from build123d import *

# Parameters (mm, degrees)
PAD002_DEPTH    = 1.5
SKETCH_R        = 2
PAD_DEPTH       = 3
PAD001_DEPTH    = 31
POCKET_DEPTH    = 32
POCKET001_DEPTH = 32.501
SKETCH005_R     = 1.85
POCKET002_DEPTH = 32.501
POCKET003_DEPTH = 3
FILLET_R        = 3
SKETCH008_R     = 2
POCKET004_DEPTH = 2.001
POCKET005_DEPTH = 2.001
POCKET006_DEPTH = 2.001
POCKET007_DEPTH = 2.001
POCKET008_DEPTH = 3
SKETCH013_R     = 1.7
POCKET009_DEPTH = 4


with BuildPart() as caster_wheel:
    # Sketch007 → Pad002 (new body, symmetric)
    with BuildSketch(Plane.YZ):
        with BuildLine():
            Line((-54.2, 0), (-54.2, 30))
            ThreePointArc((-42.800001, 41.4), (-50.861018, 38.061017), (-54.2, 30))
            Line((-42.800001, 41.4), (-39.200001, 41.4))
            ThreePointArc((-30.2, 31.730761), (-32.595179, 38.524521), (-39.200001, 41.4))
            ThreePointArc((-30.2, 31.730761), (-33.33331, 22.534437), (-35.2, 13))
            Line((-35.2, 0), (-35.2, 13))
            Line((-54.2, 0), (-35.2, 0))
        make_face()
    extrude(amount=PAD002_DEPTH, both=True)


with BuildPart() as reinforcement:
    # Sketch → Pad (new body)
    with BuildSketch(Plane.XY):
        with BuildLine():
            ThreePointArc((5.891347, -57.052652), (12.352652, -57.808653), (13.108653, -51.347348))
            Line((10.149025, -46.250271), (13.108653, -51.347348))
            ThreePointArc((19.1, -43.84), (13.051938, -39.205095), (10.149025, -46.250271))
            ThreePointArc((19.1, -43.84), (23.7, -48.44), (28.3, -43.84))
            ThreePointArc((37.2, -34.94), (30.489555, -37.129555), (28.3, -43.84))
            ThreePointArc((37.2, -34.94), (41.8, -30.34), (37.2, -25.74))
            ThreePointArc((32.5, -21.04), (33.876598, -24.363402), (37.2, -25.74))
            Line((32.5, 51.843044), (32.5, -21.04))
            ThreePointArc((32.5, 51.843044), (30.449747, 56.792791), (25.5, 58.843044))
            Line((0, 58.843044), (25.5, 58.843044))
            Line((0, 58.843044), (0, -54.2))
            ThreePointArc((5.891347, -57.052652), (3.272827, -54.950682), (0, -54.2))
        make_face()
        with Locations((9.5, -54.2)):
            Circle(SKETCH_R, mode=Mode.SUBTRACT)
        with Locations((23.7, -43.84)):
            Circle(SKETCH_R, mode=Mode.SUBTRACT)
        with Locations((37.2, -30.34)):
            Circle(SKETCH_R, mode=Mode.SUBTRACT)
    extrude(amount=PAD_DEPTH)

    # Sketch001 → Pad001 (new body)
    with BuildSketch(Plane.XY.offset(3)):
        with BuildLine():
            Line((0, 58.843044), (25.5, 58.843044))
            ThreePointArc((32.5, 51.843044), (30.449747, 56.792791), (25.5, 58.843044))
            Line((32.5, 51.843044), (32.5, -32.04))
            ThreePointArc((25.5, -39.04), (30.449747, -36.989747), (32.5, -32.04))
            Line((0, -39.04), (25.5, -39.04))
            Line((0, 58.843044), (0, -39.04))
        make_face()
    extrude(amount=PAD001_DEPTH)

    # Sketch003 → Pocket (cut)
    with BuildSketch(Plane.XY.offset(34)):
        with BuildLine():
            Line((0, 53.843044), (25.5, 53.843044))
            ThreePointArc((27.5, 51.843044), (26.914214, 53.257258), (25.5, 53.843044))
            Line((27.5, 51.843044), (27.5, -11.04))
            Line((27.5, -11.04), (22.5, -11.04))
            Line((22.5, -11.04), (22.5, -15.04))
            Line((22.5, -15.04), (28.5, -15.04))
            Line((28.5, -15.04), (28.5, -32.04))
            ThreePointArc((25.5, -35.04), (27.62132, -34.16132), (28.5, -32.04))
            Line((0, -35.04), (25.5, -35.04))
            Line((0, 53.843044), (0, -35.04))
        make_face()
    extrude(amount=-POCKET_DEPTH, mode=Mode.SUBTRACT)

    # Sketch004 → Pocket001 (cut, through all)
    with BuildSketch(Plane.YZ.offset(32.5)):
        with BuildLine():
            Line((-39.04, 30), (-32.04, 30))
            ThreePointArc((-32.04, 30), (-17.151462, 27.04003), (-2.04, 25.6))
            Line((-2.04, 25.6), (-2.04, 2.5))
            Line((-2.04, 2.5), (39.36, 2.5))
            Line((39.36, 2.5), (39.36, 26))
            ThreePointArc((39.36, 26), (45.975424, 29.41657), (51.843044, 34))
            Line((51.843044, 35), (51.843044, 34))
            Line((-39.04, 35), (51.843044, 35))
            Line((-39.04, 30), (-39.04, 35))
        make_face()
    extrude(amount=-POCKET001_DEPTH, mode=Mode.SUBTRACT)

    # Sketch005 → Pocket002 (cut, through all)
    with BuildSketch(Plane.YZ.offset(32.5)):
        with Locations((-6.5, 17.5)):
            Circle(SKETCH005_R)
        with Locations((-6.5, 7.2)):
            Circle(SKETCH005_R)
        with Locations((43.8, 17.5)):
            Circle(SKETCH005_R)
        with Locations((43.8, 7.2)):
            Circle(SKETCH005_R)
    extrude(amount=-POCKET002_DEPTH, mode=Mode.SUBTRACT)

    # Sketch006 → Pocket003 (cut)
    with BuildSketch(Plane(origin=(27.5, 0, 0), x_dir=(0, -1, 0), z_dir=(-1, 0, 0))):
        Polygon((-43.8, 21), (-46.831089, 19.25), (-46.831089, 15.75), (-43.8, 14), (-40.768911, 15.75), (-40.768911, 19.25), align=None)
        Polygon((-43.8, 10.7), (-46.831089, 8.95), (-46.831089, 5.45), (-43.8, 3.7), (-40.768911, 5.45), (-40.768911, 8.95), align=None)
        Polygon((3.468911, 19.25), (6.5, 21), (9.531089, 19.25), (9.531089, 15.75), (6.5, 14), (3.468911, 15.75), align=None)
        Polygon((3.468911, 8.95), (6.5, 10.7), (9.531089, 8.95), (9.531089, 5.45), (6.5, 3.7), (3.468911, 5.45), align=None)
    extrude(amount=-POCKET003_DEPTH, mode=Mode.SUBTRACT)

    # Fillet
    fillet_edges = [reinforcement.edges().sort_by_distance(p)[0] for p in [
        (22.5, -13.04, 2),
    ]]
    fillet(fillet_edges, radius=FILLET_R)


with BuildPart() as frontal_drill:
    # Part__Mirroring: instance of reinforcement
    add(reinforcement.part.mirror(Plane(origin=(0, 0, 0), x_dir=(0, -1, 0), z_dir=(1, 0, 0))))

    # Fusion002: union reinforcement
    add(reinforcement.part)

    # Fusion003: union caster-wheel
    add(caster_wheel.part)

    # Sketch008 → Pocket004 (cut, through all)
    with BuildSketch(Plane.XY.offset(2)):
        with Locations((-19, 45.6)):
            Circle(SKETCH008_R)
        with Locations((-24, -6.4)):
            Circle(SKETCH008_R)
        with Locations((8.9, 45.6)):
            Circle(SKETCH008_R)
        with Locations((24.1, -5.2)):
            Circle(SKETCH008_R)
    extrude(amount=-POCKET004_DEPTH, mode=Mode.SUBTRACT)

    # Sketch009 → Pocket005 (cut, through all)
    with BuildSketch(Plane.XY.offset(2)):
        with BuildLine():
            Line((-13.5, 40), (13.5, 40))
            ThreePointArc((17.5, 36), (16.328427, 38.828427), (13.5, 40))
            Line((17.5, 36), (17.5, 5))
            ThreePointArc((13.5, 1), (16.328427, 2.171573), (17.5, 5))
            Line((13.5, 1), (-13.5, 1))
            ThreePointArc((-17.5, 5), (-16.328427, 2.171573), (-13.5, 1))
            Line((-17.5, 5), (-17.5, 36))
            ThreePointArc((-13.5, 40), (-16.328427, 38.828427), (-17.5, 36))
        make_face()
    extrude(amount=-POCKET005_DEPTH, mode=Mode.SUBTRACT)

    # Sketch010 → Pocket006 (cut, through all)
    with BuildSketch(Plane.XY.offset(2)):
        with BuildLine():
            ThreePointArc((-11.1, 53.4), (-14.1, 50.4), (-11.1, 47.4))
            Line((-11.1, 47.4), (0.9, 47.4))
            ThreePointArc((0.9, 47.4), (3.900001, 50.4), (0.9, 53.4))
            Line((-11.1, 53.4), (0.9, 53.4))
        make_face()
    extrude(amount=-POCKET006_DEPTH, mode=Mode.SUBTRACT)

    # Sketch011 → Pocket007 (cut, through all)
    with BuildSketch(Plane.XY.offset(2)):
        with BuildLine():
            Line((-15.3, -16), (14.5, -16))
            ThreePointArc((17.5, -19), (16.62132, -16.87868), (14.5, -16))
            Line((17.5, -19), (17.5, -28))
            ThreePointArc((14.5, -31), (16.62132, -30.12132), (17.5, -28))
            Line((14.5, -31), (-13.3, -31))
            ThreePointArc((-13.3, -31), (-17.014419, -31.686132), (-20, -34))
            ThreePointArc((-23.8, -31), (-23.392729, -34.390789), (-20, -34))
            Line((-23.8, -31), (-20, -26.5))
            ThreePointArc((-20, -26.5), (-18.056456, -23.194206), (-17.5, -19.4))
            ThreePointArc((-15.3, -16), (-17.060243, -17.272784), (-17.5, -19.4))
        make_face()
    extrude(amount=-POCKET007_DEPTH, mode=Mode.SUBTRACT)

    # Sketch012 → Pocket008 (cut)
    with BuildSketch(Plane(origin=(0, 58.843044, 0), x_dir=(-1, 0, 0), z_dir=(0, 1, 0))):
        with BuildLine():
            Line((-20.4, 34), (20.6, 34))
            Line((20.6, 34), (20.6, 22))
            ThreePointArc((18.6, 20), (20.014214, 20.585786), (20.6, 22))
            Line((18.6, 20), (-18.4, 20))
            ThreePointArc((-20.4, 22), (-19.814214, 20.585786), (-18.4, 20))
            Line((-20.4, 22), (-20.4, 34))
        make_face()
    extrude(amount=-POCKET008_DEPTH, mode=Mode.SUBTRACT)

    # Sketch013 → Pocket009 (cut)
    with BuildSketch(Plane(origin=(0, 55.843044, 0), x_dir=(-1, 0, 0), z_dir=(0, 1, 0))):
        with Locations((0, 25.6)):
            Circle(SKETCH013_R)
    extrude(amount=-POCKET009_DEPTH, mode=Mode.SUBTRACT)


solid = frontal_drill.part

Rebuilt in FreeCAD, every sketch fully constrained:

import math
import FreeCAD as App
import Part
import Sketcher

V = App.Vector
Q = App.Units.Quantity


def edges_at(feature, points):
    """Names of the edges that pass closest to the given points."""
    edges = feature.Shape.Edges
    near = lambda p: min(range(len(edges)), key=lambda i: edges[i].distToShape(Part.Vertex(*p))[0])
    return sorted({f"Edge{near(p) + 1}" for p in points})


def add_polygon(sketch, points):
    """Adds a closed chain of lines whose ends are joined by coincident constraints."""
    first, n = sketch.GeometryCount, len(points)
    for a, b in zip(points, points[1:] + points[:1]):
        sketch.addGeometry(Part.LineSegment(App.Vector(*a, 0), App.Vector(*b, 0)), False)
    for i in range(n):
        sketch.addConstraint(Sketcher.Constraint("Coincident", first + i, 2, first + (i + 1) % n, 1))

doc = App.newDocument("Part")
body = doc.addObject("PartDesign::Body", "Body")

# Sketch on YZ plane
sketch1 = body.newObject("Sketcher::SketchObject", "Sketch")
sketch1.AttachmentSupport = (doc.getObject("YZ_Plane"), [""])
sketch1.MapMode = "FlatFace"
sketch1.addGeometry(Part.LineSegment(V(-54.2, 30, 0), V(-54.2, 0, 0)), False)
sketch1.addGeometry(Part.LineSegment(V(-54.2, 0, 0), V(-35.2, 0, 0)), False)
sketch1.addGeometry(Part.LineSegment(V(-35.2, 0, 0), V(-35.2, 13, 0)), False)
sketch1.addGeometry(Part.ArcOfCircle(Part.Circle(V(36.2, 4, 0), V(0, 0, 1), 72), math.radians(157.32), math.radians(172.79)), False)
sketch1.addGeometry(Part.ArcOfCircle(Part.Circle(V(-39.2, 32.4, 0), V(0, 0, 1), 9), math.radians(-4), math.radians(90)), False)
sketch1.addGeometry(Part.LineSegment(V(-39.2, 41.4, 0), V(-42.8, 41.4, 0)), False)
sketch1.addGeometry(Part.ArcOfCircle(Part.Circle(V(-42.8, 30, 0), V(0, 0, 1), 11.4), math.radians(90), math.radians(180)), False)
sketch1.addConstraint(Sketcher.Constraint("Coincident", 0, 2, 1, 1))
sketch1.addConstraint(Sketcher.Constraint("Coincident", 1, 2, 2, 1))
sketch1.addConstraint(Sketcher.Constraint("Coincident", 2, 2, 3, 2))
sketch1.addConstraint(Sketcher.Constraint("Coincident", 3, 1, 4, 1))
sketch1.addConstraint(Sketcher.Constraint("Coincident", 4, 2, 5, 1))
sketch1.addConstraint(Sketcher.Constraint("Tangent", 5, 2, 6, 1))
sketch1.addConstraint(Sketcher.Constraint("Tangent", 6, 2, 0, 1))
sketch1.addConstraint(Sketcher.Constraint("Vertical", 0))
sketch1.addConstraint(Sketcher.Constraint("Horizontal", 1))
sketch1.addConstraint(Sketcher.Constraint("Vertical", 2))
sketch1.addConstraint(Sketcher.Constraint("Horizontal", 5))
sketch1.addConstraint(Sketcher.Constraint("PointOnObject", 0, 2, -1))
sketch1.addConstraint(Sketcher.Constraint("Radius", 6, Q("11.399999 mm")))
sketch1.addConstraint(Sketcher.Constraint("DistanceX", 1, 1, 1, 2, Q("19 mm")))
sketch1.addConstraint(Sketcher.Constraint("DistanceY", 0, 2, 0, 1, Q("30 mm")))
sketch1.addConstraint(Sketcher.Constraint("DistanceY", 2, 1, 2, 2, Q("13 mm")))
sketch1.addConstraint(Sketcher.Constraint("DistanceX", 5, 2, 5, 1, Q("3.6 mm")))
sketch1.addConstraint(Sketcher.Constraint("DistanceX", 2, 2, 3, 1, Q("5 mm")))
sketch1.addConstraint(Sketcher.Constraint("DistanceX", 6, 3, -1, 1, Q("42.800001 mm")))
sketch1.addConstraint(Sketcher.Constraint("Radius", 3, Q("72.000043 mm")))
sketch1.addConstraint(Sketcher.Constraint("Radius", 4, Q("9.023133 mm")))
sketch1.addConstraint(Sketcher.Constraint("DistanceX", -1, 1, 3, 3, Q("36.230901 mm")))
pad1 = body.newObject("PartDesign::Pad", "Pad")
pad1.Profile = sketch1
pad1.Length = 3
pad1.Midplane = True
body2 = doc.addObject("PartDesign::Body", "Body001")

# Sketch on XY plane
sketch2 = body2.newObject("Sketcher::SketchObject", "Sketch001")
sketch2.AttachmentSupport = (doc.getObject("XY_Plane001"), [""])
sketch2.MapMode = "FlatFace"
sketch2.addGeometry(Part.ArcOfCircle(Part.Circle(V(9.5, -54.2, 0), V(0, 0, 1), 4.6), math.radians(-142), math.radians(38)), False)
sketch2.addGeometry(Part.LineSegment(V(13.1, -51.3, 0), V(10.1, -46.3, 0)), False)
sketch2.addGeometry(Part.ArcOfCircle(Part.Circle(V(14.3, -43.8, 0), V(0, 0, 1), 4.8), math.radians(0), math.radians(210)), False)
sketch2.addGeometry(Part.ArcOfCircle(Part.Circle(V(23.7, -43.8, 0), V(0, 0, 1), 4.6), math.radians(180), math.radians(360)), False)
sketch2.addGeometry(Part.ArcOfCircle(Part.Circle(V(36, -42.6, 0), V(0, 0, 1), 7.8), math.radians(81), math.radians(189)), False)
sketch2.addGeometry(Part.ArcOfCircle(Part.Circle(V(37.2, -30.3, 0), V(0, 0, 1), 4.6), math.radians(-90), math.radians(90)), False)
sketch2.addGeometry(Part.ArcOfCircle(Part.Circle(V(37.2, -21, 0), V(0, 0, 1), 4.7), math.radians(180), math.radians(270)), False)
sketch2.addGeometry(Part.LineSegment(V(32.5, -21, 0), V(32.5, 51.8, 0)), False)
sketch2.addGeometry(Part.ArcOfCircle(Part.Circle(V(25.5, 51.8, 0), V(0, 0, 1), 7), math.radians(0), math.radians(90)), False)
sketch2.addGeometry(Part.LineSegment(V(25.5, 58.8, 0), V(0, 58.8, 0)), False)
sketch2.addGeometry(Part.LineSegment(V(0, 58.8, 0), V(0, -54.2, 0)), False)
sketch2.addGeometry(Part.ArcOfCircle(Part.Circle(V(0, -61.7, 0), V(0, 0, 1), 7.5), math.radians(38), math.radians(90)), False)
sketch2.addGeometry(Part.Circle(V(9.5, -54.2, 0), V(0, 0, 1), 2), False)
sketch2.addGeometry(Part.Circle(V(23.7, -43.8, 0), V(0, 0, 1), 2), False)
sketch2.addGeometry(Part.Circle(V(37.2, -30.3, 0), V(0, 0, 1), 2), False)
sketch2.addConstraint(Sketcher.Constraint("Coincident", 0, 2, 1, 1))
sketch2.addConstraint(Sketcher.Constraint("Tangent", 1, 2, 2, 2))
sketch2.addConstraint(Sketcher.Constraint("Tangent", 2, 1, 3, 1))
sketch2.addConstraint(Sketcher.Constraint("Coincident", 3, 2, 4, 2))
sketch2.addConstraint(Sketcher.Constraint("Coincident", 4, 1, 5, 1))
sketch2.addConstraint(Sketcher.Constraint("Tangent", 5, 2, 6, 2))
sketch2.addConstraint(Sketcher.Constraint("Tangent", 6, 1, 7, 1))
sketch2.addConstraint(Sketcher.Constraint("Tangent", 7, 2, 8, 1))
sketch2.addConstraint(Sketcher.Constraint("Tangent", 8, 2, 9, 1))
sketch2.addConstraint(Sketcher.Constraint("Coincident", 9, 2, 10, 1))
sketch2.addConstraint(Sketcher.Constraint("Coincident", 10, 2, 11, 2))
sketch2.addConstraint(Sketcher.Constraint("Tangent", 11, 1, 0, 1))
sketch2.addConstraint(Sketcher.Constraint("Vertical", 7))
sketch2.addConstraint(Sketcher.Constraint("Horizontal", 9))
sketch2.addConstraint(Sketcher.Constraint("Vertical", 10))
sketch2.addConstraint(Sketcher.Constraint("Coincident", 12, 3, 0, 3))
sketch2.addConstraint(Sketcher.Constraint("Coincident", 13, 3, 3, 3))
sketch2.addConstraint(Sketcher.Constraint("Coincident", 14, 3, 5, 3))
sketch2.addConstraint(Sketcher.Constraint("Equal", 0, 3))
sketch2.addConstraint(Sketcher.Constraint("Equal", 3, 5))
sketch2.addConstraint(Sketcher.Constraint("Equal", 12, 13))
sketch2.addConstraint(Sketcher.Constraint("Equal", 13, 14))
sketch2.addConstraint(Sketcher.Constraint("PointOnObject", 11, 3, -2))
sketch2.addConstraint(Sketcher.Constraint("PointOnObject", 9, 2, -2))
sketch2.addConstraint(Sketcher.Constraint("Horizontal", 2, 3, 3, 3))
sketch2.addConstraint(Sketcher.Constraint("Horizontal", 2, 1, 3, 2))
sketch2.addConstraint(Sketcher.Constraint("Horizontal", 12, 3, 10, 2))
sketch2.addConstraint(Sketcher.Constraint("Vertical", 5, 3, 6, 3))
sketch2.addConstraint(Sketcher.Constraint("Vertical", 14, 3, 4, 1))
sketch2.addConstraint(Sketcher.Constraint("Diameter", 12, Q("4 mm")))
sketch2.addConstraint(Sketcher.Constraint("Radius", 8, Q("7.000002 mm")))
sketch2.addConstraint(Sketcher.Constraint("Radius", 0, Q("4.6 mm")))
sketch2.addConstraint(Sketcher.Constraint("Radius", 2, Q("4.8 mm")))
sketch2.addConstraint(Sketcher.Constraint("Radius", 6, Q("4.7 mm")))
sketch2.addConstraint(Sketcher.Constraint("DistanceX", 9, 2, 9, 1, Q("25.5 mm")))
sketch2.addConstraint(Sketcher.Constraint("DistanceX", -1, 1, 4, 3, Q("35.999999 mm")))
sketch2.addConstraint(Sketcher.Constraint("DistanceX", -1, 1, 0, 3, Q("9.5 mm")))
sketch2.addConstraint(Sketcher.Constraint("DistanceY", 0, 3, -1, 1, Q("54.2 mm")))
sketch2.addConstraint(Sketcher.Constraint("DistanceX", -1, 1, 2, 3, Q("14.3 mm")))
sketch2.addConstraint(Sketcher.Constraint("DistanceY", 3, 3, 4, 3, Q("1.200001 mm")))
sketch2.addConstraint(Sketcher.Constraint("DistanceY", 2, 3, -1, 1, Q("43.84 mm")))
sketch2.addConstraint(Sketcher.Constraint("Distance", 1, Q("5.89403 mm")))
sketch2.addConstraint(Sketcher.Constraint("DistanceY", 7, 1, 7, 2, Q("72.883044 mm")))
pad2 = body2.newObject("PartDesign::Pad", "Pad001")
pad2.Profile = sketch2
pad2.Length = 3

# Sketch on XY plane
sketch3 = body2.newObject("Sketcher::SketchObject", "Sketch002")
sketch3.AttachmentSupport = (doc.getObject("XY_Plane001"), [""])
sketch3.MapMode = "FlatFace"
sketch3.AttachmentOffset = App.Placement(V(0, 0, 3), App.Rotation())
sketch3.addGeometry(Part.LineSegment(V(26, 59, 0), V(0, 59, 0)), False)
sketch3.addGeometry(Part.LineSegment(V(0, 59, 0), V(0, -39, 0)), False)
sketch3.addGeometry(Part.LineSegment(V(0, -39, 0), V(26, -39, 0)), False)
sketch3.addGeometry(Part.ArcOfCircle(Part.Circle(V(25, -32, 0), V(0, 0, 1), 7), math.radians(-90), math.radians(0)), False)
sketch3.addGeometry(Part.LineSegment(V(32, -32, 0), V(32, 52, 0)), False)
sketch3.addGeometry(Part.ArcOfCircle(Part.Circle(V(25, 52, 0), V(0, 0, 1), 7), math.radians(0), math.radians(90)), False)
sketch3.addConstraint(Sketcher.Constraint("Coincident", 0, 2, 1, 1))
sketch3.addConstraint(Sketcher.Constraint("Coincident", 1, 2, 2, 1))
sketch3.addConstraint(Sketcher.Constraint("Tangent", 2, 2, 3, 1))
sketch3.addConstraint(Sketcher.Constraint("Tangent", 3, 2, 4, 1))
sketch3.addConstraint(Sketcher.Constraint("Tangent", 4, 2, 5, 1))
sketch3.addConstraint(Sketcher.Constraint("Tangent", 5, 2, 0, 1))
sketch3.addConstraint(Sketcher.Constraint("Horizontal", 0))
sketch3.addConstraint(Sketcher.Constraint("Vertical", 1))
sketch3.addConstraint(Sketcher.Constraint("Horizontal", 2))
sketch3.addConstraint(Sketcher.Constraint("Vertical", 4))
sketch3.addConstraint(Sketcher.Constraint("Equal", 3, 5))
sketch3.addConstraint(Sketcher.Constraint("PointOnObject", 0, 2, -2))
sketch3.addConstraint(Sketcher.Constraint("Radius", 3, Q("7.000002 mm")))
sketch3.addConstraint(Sketcher.Constraint("DistanceX", 0, 2, 0, 1, Q("25.5 mm")))
sketch3.addConstraint(Sketcher.Constraint("DistanceY", 3, 3, -1, 1, Q("32.039998 mm")))
sketch3.addConstraint(Sketcher.Constraint("DistanceY", 1, 2, 1, 1, Q("97.883044 mm")))
pad3 = body2.newObject("PartDesign::Pad", "Pad002")
pad3.Profile = sketch3
pad3.Length = 31

# Sketch on XY plane
sketch4 = body2.newObject("Sketcher::SketchObject", "Sketch003")
sketch4.AttachmentSupport = (doc.getObject("XY_Plane001"), [""])
sketch4.MapMode = "FlatFace"
sketch4.AttachmentOffset = App.Placement(V(0, 0, 34), App.Rotation())
sketch4.addGeometry(Part.LineSegment(V(25.5, 53.8, 0), V(0, 53.8, 0)), False)
sketch4.addGeometry(Part.LineSegment(V(0, 53.8, 0), V(0, -35, 0)), False)
sketch4.addGeometry(Part.LineSegment(V(0, -35, 0), V(25.5, -35, 0)), False)
sketch4.addGeometry(Part.ArcOfCircle(Part.Circle(V(25.5, -32, 0), V(0, 0, 1), 3), math.radians(-90), math.radians(0)), False)
sketch4.addGeometry(Part.LineSegment(V(28.5, -32, 0), V(28.5, -15, 0)), False)
sketch4.addGeometry(Part.LineSegment(V(28.5, -15, 0), V(22.5, -15, 0)), False)
sketch4.addGeometry(Part.LineSegment(V(22.5, -15, 0), V(22.5, -11, 0)), False)
sketch4.addGeometry(Part.LineSegment(V(22.5, -11, 0), V(27.5, -11, 0)), False)
sketch4.addGeometry(Part.LineSegment(V(27.5, -11, 0), V(27.5, 51.8, 0)), False)
sketch4.addGeometry(Part.ArcOfCircle(Part.Circle(V(25.5, 51.8, 0), V(0, 0, 1), 2), math.radians(0), math.radians(90)), False)
sketch4.addConstraint(Sketcher.Constraint("Coincident", 0, 2, 1, 1))
sketch4.addConstraint(Sketcher.Constraint("Coincident", 1, 2, 2, 1))
sketch4.addConstraint(Sketcher.Constraint("Tangent", 2, 2, 3, 1))
sketch4.addConstraint(Sketcher.Constraint("Tangent", 3, 2, 4, 1))
sketch4.addConstraint(Sketcher.Constraint("Coincident", 4, 2, 5, 1))
sketch4.addConstraint(Sketcher.Constraint("Coincident", 5, 2, 6, 1))
sketch4.addConstraint(Sketcher.Constraint("Coincident", 6, 2, 7, 1))
sketch4.addConstraint(Sketcher.Constraint("Coincident", 7, 2, 8, 1))
sketch4.addConstraint(Sketcher.Constraint("Tangent", 8, 2, 9, 1))
sketch4.addConstraint(Sketcher.Constraint("Tangent", 9, 2, 0, 1))
sketch4.addConstraint(Sketcher.Constraint("Horizontal", 0))
sketch4.addConstraint(Sketcher.Constraint("Vertical", 1))
sketch4.addConstraint(Sketcher.Constraint("Horizontal", 2))
sketch4.addConstraint(Sketcher.Constraint("Vertical", 4))
sketch4.addConstraint(Sketcher.Constraint("Horizontal", 5))
sketch4.addConstraint(Sketcher.Constraint("Vertical", 6))
sketch4.addConstraint(Sketcher.Constraint("Horizontal", 7))
sketch4.addConstraint(Sketcher.Constraint("Vertical", 8))
sketch4.addConstraint(Sketcher.Constraint("PointOnObject", 0, 2, -2))
sketch4.addConstraint(Sketcher.Constraint("Vertical", 9, 3, 2, 2))
sketch4.addConstraint(Sketcher.Constraint("Radius", 3, Q("3.000001 mm")))
sketch4.addConstraint(Sketcher.Constraint("Radius", 9, Q("1.999999 mm")))
sketch4.addConstraint(Sketcher.Constraint("DistanceX", 5, 2, 5, 1, Q("6 mm")))
sketch4.addConstraint(Sketcher.Constraint("DistanceY", 4, 1, 4, 2, Q("17 mm")))
sketch4.addConstraint(Sketcher.Constraint("DistanceY", 6, 1, 6, 2, Q("4 mm")))
sketch4.addConstraint(Sketcher.Constraint("DistanceX", 0, 2, 0, 1, Q("25.5 mm")))
sketch4.addConstraint(Sketcher.Constraint("DistanceY", 3, 3, -1, 1, Q("32.039999 mm")))
sketch4.addConstraint(Sketcher.Constraint("DistanceY", 1, 2, 1, 1, Q("88.883044 mm")))
pocket1 = body2.newObject("PartDesign::Pocket", "Pocket")
pocket1.Profile = sketch4
pocket1.Length = 32

# Sketch on YZ plane
sketch5 = body2.newObject("Sketcher::SketchObject", "Sketch004")
sketch5.AttachmentSupport = (doc.getObject("YZ_Plane001"), [""])
sketch5.MapMode = "FlatFace"
sketch5.AttachmentOffset = App.Placement(V(0, 0, 32.5), App.Rotation())
sketch5.addGeometry(Part.LineSegment(V(-39, 30, 0), V(-32, 30, 0)), False)
sketch5.addGeometry(Part.ArcOfCircle(Part.Circle(V(4.6, 175.5, 0), V(0, 0, 1), 150), math.radians(-104.14), math.radians(-92.54)), False)
sketch5.addGeometry(Part.LineSegment(V(-2, 25.6, 0), V(-2, 2.5, 0)), False)
sketch5.addGeometry(Part.LineSegment(V(-2, 2.5, 0), V(39.4, 2.5, 0)), False)
sketch5.addGeometry(Part.LineSegment(V(39.4, 2.5, 0), V(39.4, 26, 0)), False)
sketch5.addGeometry(Part.ArcOfCircle(Part.Circle(V(24.4, 63.1, 0), V(0, 0, 1), 40), math.radians(-68), math.radians(-47)), False)
sketch5.addGeometry(Part.LineSegment(V(51.8, 34, 0), V(51.8, 35, 0)), False)
sketch5.addGeometry(Part.LineSegment(V(51.8, 35, 0), V(-39, 35, 0)), False)
sketch5.addGeometry(Part.LineSegment(V(-39, 35, 0), V(-39, 30, 0)), False)
sketch5.addConstraint(Sketcher.Constraint("Coincident", 0, 2, 1, 1))
sketch5.addConstraint(Sketcher.Constraint("Coincident", 1, 2, 2, 1))
sketch5.addConstraint(Sketcher.Constraint("Coincident", 2, 2, 3, 1))
sketch5.addConstraint(Sketcher.Constraint("Coincident", 3, 2, 4, 1))
sketch5.addConstraint(Sketcher.Constraint("Coincident", 4, 2, 5, 1))
sketch5.addConstraint(Sketcher.Constraint("Coincident", 5, 2, 6, 1))
sketch5.addConstraint(Sketcher.Constraint("Coincident", 6, 2, 7, 1))
sketch5.addConstraint(Sketcher.Constraint("Coincident", 7, 2, 8, 1))
sketch5.addConstraint(Sketcher.Constraint("Coincident", 8, 2, 0, 1))
sketch5.addConstraint(Sketcher.Constraint("Horizontal", 0))
sketch5.addConstraint(Sketcher.Constraint("Vertical", 2))
sketch5.addConstraint(Sketcher.Constraint("Horizontal", 3))
sketch5.addConstraint(Sketcher.Constraint("Vertical", 4))
sketch5.addConstraint(Sketcher.Constraint("Vertical", 6))
sketch5.addConstraint(Sketcher.Constraint("Horizontal", 7))
sketch5.addConstraint(Sketcher.Constraint("Vertical", 8))
sketch5.addConstraint(Sketcher.Constraint("DistanceX", 0, 1, 0, 2, Q("7 mm")))
sketch5.addConstraint(Sketcher.Constraint("DistanceY", 6, 1, 6, 2, Q("1 mm")))
sketch5.addConstraint(Sketcher.Constraint("DistanceY", 8, 2, 8, 1, Q("5 mm")))
sketch5.addConstraint(Sketcher.Constraint("DistanceX", 3, 1, 3, 2, Q("41.4 mm")))
sketch5.addConstraint(Sketcher.Constraint("DistanceY", 2, 2, 2, 1, Q("23.1 mm")))
sketch5.addConstraint(Sketcher.Constraint("DistanceY", 4, 1, 4, 2, Q("23.5 mm")))
sketch5.addConstraint(Sketcher.Constraint("DistanceY", -1, 1, 0, 2, Q("30 mm")))
sketch5.addConstraint(Sketcher.Constraint("DistanceY", -1, 1, 4, 2, Q("26 mm")))
sketch5.addConstraint(Sketcher.Constraint("DistanceX", 0, 2, 1, 2, Q("30 mm")))
sketch5.addConstraint(Sketcher.Constraint("DistanceX", 0, 2, -1, 1, Q("32.04 mm")))
sketch5.addConstraint(Sketcher.Constraint("Radius", 1, Q("149.999914 mm")))
sketch5.addConstraint(Sketcher.Constraint("Radius", 5, Q("40.000005 mm")))
sketch5.addConstraint(Sketcher.Constraint("DistanceX", 7, 2, 7, 1, Q("90.883044 mm")))
pocket2 = body2.newObject("PartDesign::Pocket", "Pocket001")
pocket2.Profile = sketch5
pocket2.Type = "ThroughAll"

# Sketch on YZ plane
sketch6 = body2.newObject("Sketcher::SketchObject", "Sketch005")
sketch6.AttachmentSupport = (doc.getObject("YZ_Plane001"), [""])
sketch6.MapMode = "FlatFace"
sketch6.AttachmentOffset = App.Placement(V(0, 0, 32.5), App.Rotation())
sketch6.addGeometry(Part.Circle(V(-6.5, 17.5, 0), V(0, 0, 1), 1.9), False)
sketch6.addGeometry(Part.Circle(V(-6.5, 7.2, 0), V(0, 0, 1), 1.9), False)
sketch6.addGeometry(Part.Circle(V(43.8, 17.5, 0), V(0, 0, 1), 1.9), False)
sketch6.addGeometry(Part.Circle(V(43.8, 7.2, 0), V(0, 0, 1), 1.9), False)
sketch6.addConstraint(Sketcher.Constraint("Equal", 0, 1))
sketch6.addConstraint(Sketcher.Constraint("Equal", 1, 2))
sketch6.addConstraint(Sketcher.Constraint("Equal", 2, 3))
sketch6.addConstraint(Sketcher.Constraint("Horizontal", 0, 3, 2, 3))
sketch6.addConstraint(Sketcher.Constraint("Horizontal", 1, 3, 3, 3))
sketch6.addConstraint(Sketcher.Constraint("Vertical", 0, 3, 1, 3))
sketch6.addConstraint(Sketcher.Constraint("Vertical", 2, 3, 3, 3))
sketch6.addConstraint(Sketcher.Constraint("Diameter", 0, Q("3.7 mm")))
sketch6.addConstraint(Sketcher.Constraint("DistanceX", 0, 3, -1, 1, Q("6.5 mm")))
sketch6.addConstraint(Sketcher.Constraint("DistanceY", -1, 1, 0, 3, Q("17.5 mm")))
sketch6.addConstraint(Sketcher.Constraint("DistanceY", -1, 1, 1, 3, Q("7.2 mm")))
sketch6.addConstraint(Sketcher.Constraint("DistanceX", -1, 1, 2, 3, Q("43.8 mm")))
pocket3 = body2.newObject("PartDesign::Pocket", "Pocket002")
pocket3.Profile = sketch6
pocket3.Type = "ThroughAll"

# Sketch on YZ plane
sketch7 = body2.newObject("Sketcher::SketchObject", "Sketch006")
sketch7.AttachmentSupport = (doc.getObject("YZ_Plane001"), [""])
sketch7.MapMode = "FlatFace"
sketch7.AttachmentOffset = App.Placement(V(0, 0, 27.5), App.Rotation())
add_polygon(sketch7, [(43.8, 21), (46.8, 19.2), (46.8, 15.8), (43.8, 14), (40.8, 15.8), (40.8, 19.2)])  # lines 0-5
add_polygon(sketch7, [(43.8, 10.7), (46.8, 8.9), (46.8, 5.5), (43.8, 3.7), (40.8, 5.5), (40.8, 8.9)])  # lines 6-11
add_polygon(sketch7, [(-6.5, 21), (-3.5, 19.2), (-3.5, 15.8), (-6.5, 14), (-9.5, 15.8), (-9.5, 19.2)])  # lines 12-17
add_polygon(sketch7, [(-6.5, 10.7), (-3.5, 8.9), (-3.5, 5.5), (-6.5, 3.7), (-9.5, 5.5), (-9.5, 8.9)])  # lines 18-23
sketch7.addConstraint(Sketcher.Constraint("Vertical", 1))
sketch7.addConstraint(Sketcher.Constraint("Vertical", 4))
sketch7.addConstraint(Sketcher.Constraint("Vertical", 7))
sketch7.addConstraint(Sketcher.Constraint("Vertical", 10))
sketch7.addConstraint(Sketcher.Constraint("Vertical", 13))
sketch7.addConstraint(Sketcher.Constraint("Vertical", 16))
sketch7.addConstraint(Sketcher.Constraint("Vertical", 19))
sketch7.addConstraint(Sketcher.Constraint("Vertical", 22))
sketch7.addConstraint(Sketcher.Constraint("Parallel", 0, 3))
sketch7.addConstraint(Sketcher.Constraint("Parallel", 2, 5))
sketch7.addConstraint(Sketcher.Constraint("Parallel", 3, 6))
sketch7.addConstraint(Sketcher.Constraint("Parallel", 5, 8))
sketch7.addConstraint(Sketcher.Constraint("Parallel", 6, 9))
sketch7.addConstraint(Sketcher.Constraint("Parallel", 8, 11))
sketch7.addConstraint(Sketcher.Constraint("Parallel", 9, 12))
sketch7.addConstraint(Sketcher.Constraint("Parallel", 11, 14))
sketch7.addConstraint(Sketcher.Constraint("Parallel", 12, 15))
sketch7.addConstraint(Sketcher.Constraint("Parallel", 14, 17))
sketch7.addConstraint(Sketcher.Constraint("Parallel", 15, 18))
sketch7.addConstraint(Sketcher.Constraint("Parallel", 17, 20))
sketch7.addConstraint(Sketcher.Constraint("Parallel", 18, 21))
sketch7.addConstraint(Sketcher.Constraint("Parallel", 20, 23))
sketch7.addConstraint(Sketcher.Constraint("Horizontal", 1, 2, 3, 2))
sketch7.addConstraint(Sketcher.Constraint("Horizontal", 0, 2, 4, 2))
sketch7.addConstraint(Sketcher.Constraint("Horizontal", 7, 2, 9, 2))
sketch7.addConstraint(Sketcher.Constraint("Horizontal", 6, 2, 10, 2))
sketch7.addConstraint(Sketcher.Constraint("Horizontal", 4, 2, 12, 2))
sketch7.addConstraint(Sketcher.Constraint("Horizontal", 3, 2, 13, 2))
sketch7.addConstraint(Sketcher.Constraint("Horizontal", 2, 2, 14, 2))
sketch7.addConstraint(Sketcher.Constraint("Horizontal", 13, 2, 15, 2))
sketch7.addConstraint(Sketcher.Constraint("Horizontal", 12, 2, 16, 2))
sketch7.addConstraint(Sketcher.Constraint("Horizontal", 10, 2, 18, 2))
sketch7.addConstraint(Sketcher.Constraint("Horizontal", 9, 2, 19, 2))
sketch7.addConstraint(Sketcher.Constraint("Horizontal", 8, 2, 20, 2))
sketch7.addConstraint(Sketcher.Constraint("Horizontal", 19, 2, 21, 2))
sketch7.addConstraint(Sketcher.Constraint("Horizontal", 18, 2, 22, 2))
sketch7.addConstraint(Sketcher.Constraint("Vertical", 2, 2, 5, 2))
sketch7.addConstraint(Sketcher.Constraint("Vertical", 1, 2, 6, 2))
sketch7.addConstraint(Sketcher.Constraint("Vertical", 5, 2, 8, 2))
sketch7.addConstraint(Sketcher.Constraint("Vertical", 13, 2, 18, 2))
sketch7.addConstraint(Sketcher.Constraint("Equal", 4, 7))
sketch7.addConstraint(Sketcher.Constraint("Angle", 0, Q("-29.999999 deg")))
sketch7.addConstraint(Sketcher.Constraint("DistanceY", 1, 2, 1, 1, Q("3.5 mm")))
sketch7.addConstraint(Sketcher.Constraint("DistanceY", -1, 1, 2, 2, Q("14 mm")))
sketch7.addConstraint(Sketcher.Constraint("DistanceY", -1, 1, 5, 2, Q("21 mm")))
sketch7.addConstraint(Sketcher.Constraint("DistanceX", -1, 1, 2, 2, Q("43.8 mm")))
sketch7.addConstraint(Sketcher.Constraint("DistanceY", -1, 1, 8, 2, Q("3.7 mm")))
sketch7.addConstraint(Sketcher.Constraint("DistanceX", 14, 2, -1, 1, Q("6.5 mm")))
pocket4 = body2.newObject("PartDesign::Pocket", "Pocket003")
pocket4.Profile = sketch7
pocket4.Length = 3
pocket4.Reversed = True
doc.recompute()

fillet = body2.newObject("PartDesign::Fillet", "Fillet")
fillet.Base = (pocket4, edges_at(pocket4, [(22.5, -13.04, 2)]))
fillet.Radius = 3
body3 = doc.addObject("PartDesign::Body", "Body002")
doc.recompute()

mirroring = doc.addObject("Part::Mirroring", "Mirroring")
mirroring.Source = body2
mirroring.Base = V(0, 0, 0)
mirroring.Normal = V(1, 0, 0)
body3.BaseFeature = mirroring
doc.recompute()

boolean = body3.newObject("PartDesign::Boolean", "Boolean")
boolean.Type = "Fuse"
boolean.addObjects([body2])
doc.recompute()

boolean2 = body3.newObject("PartDesign::Boolean", "Boolean001")
boolean2.Type = "Fuse"
boolean2.addObjects([body])

# Sketch on XY plane
sketch8 = body3.newObject("Sketcher::SketchObject", "Sketch007")
sketch8.AttachmentSupport = (doc.getObject("XY_Plane002"), [""])
sketch8.MapMode = "FlatFace"
sketch8.AttachmentOffset = App.Placement(V(0, 0, 2), App.Rotation())
sketch8.addGeometry(Part.Circle(V(-19, 45.6, 0), V(0, 0, 1), 2), False)
sketch8.addGeometry(Part.Circle(V(-24, -6.4, 0), V(0, 0, 1), 2), False)
sketch8.addGeometry(Part.Circle(V(8.9, 45.6, 0), V(0, 0, 1), 2), False)
sketch8.addGeometry(Part.Circle(V(24.1, -5.2, 0), V(0, 0, 1), 2), False)
sketch8.addConstraint(Sketcher.Constraint("Equal", 0, 1))
sketch8.addConstraint(Sketcher.Constraint("Equal", 1, 2))
sketch8.addConstraint(Sketcher.Constraint("Equal", 2, 3))
sketch8.addConstraint(Sketcher.Constraint("Horizontal", 0, 3, 2, 3))
sketch8.addConstraint(Sketcher.Constraint("Diameter", 0, Q("4 mm")))
sketch8.addConstraint(Sketcher.Constraint("DistanceX", 0, 3, -1, 1, Q("19 mm")))
sketch8.addConstraint(Sketcher.Constraint("DistanceX", 1, 3, -1, 1, Q("24 mm")))
sketch8.addConstraint(Sketcher.Constraint("DistanceY", 1, 3, 0, 3, Q("52 mm")))
sketch8.addConstraint(Sketcher.Constraint("DistanceY", -1, 1, 0, 3, Q("45.6 mm")))
sketch8.addConstraint(Sketcher.Constraint("DistanceX", -1, 1, 2, 3, Q("8.9 mm")))
sketch8.addConstraint(Sketcher.Constraint("DistanceX", -1, 1, 3, 3, Q("24.1 mm")))
sketch8.addConstraint(Sketcher.Constraint("DistanceY", 3, 3, -1, 1, Q("5.2 mm")))
pocket5 = body3.newObject("PartDesign::Pocket", "Pocket004")
pocket5.Profile = sketch8
pocket5.Type = "ThroughAll"

# Sketch on XY plane
sketch9 = body3.newObject("Sketcher::SketchObject", "Sketch008")
sketch9.AttachmentSupport = (doc.getObject("XY_Plane002"), [""])
sketch9.MapMode = "FlatFace"
sketch9.AttachmentOffset = App.Placement(V(0, 0, 2), App.Rotation())
sketch9.addGeometry(Part.LineSegment(V(13.5, 40, 0), V(-13.5, 40, 0)), False)
sketch9.addGeometry(Part.ArcOfCircle(Part.Circle(V(-13.5, 36, 0), V(0, 0, 1), 4), math.radians(90), math.radians(180)), False)
sketch9.addGeometry(Part.LineSegment(V(-17.5, 36, 0), V(-17.5, 5, 0)), False)
sketch9.addGeometry(Part.ArcOfCircle(Part.Circle(V(-13.5, 5, 0), V(0, 0, 1), 4), math.radians(-180), math.radians(-90)), False)
sketch9.addGeometry(Part.LineSegment(V(-13.5, 1, 0), V(13.5, 1, 0)), False)
sketch9.addGeometry(Part.ArcOfCircle(Part.Circle(V(13.5, 5, 0), V(0, 0, 1), 4), math.radians(-90), math.radians(0)), False)
sketch9.addGeometry(Part.LineSegment(V(17.5, 5, 0), V(17.5, 36, 0)), False)
sketch9.addGeometry(Part.ArcOfCircle(Part.Circle(V(13.5, 36, 0), V(0, 0, 1), 4), math.radians(0), math.radians(90)), False)
sketch9.addConstraint(Sketcher.Constraint("Tangent", 0, 2, 1, 1))
sketch9.addConstraint(Sketcher.Constraint("Tangent", 1, 2, 2, 1))
sketch9.addConstraint(Sketcher.Constraint("Tangent", 2, 2, 3, 1))
sketch9.addConstraint(Sketcher.Constraint("Tangent", 3, 2, 4, 1))
sketch9.addConstraint(Sketcher.Constraint("Tangent", 4, 2, 5, 1))
sketch9.addConstraint(Sketcher.Constraint("Tangent", 5, 2, 6, 1))
sketch9.addConstraint(Sketcher.Constraint("Tangent", 6, 2, 7, 1))
sketch9.addConstraint(Sketcher.Constraint("Tangent", 7, 2, 0, 1))
sketch9.addConstraint(Sketcher.Constraint("Horizontal", 0))
sketch9.addConstraint(Sketcher.Constraint("Vertical", 2))
sketch9.addConstraint(Sketcher.Constraint("Horizontal", 4))
sketch9.addConstraint(Sketcher.Constraint("Vertical", 6))
sketch9.addConstraint(Sketcher.Constraint("Equal", 1, 3))
sketch9.addConstraint(Sketcher.Constraint("Equal", 3, 5))
sketch9.addConstraint(Sketcher.Constraint("Equal", 5, 7))
sketch9.addConstraint(Sketcher.Constraint("Radius", 1, Q("4 mm")))
sketch9.addConstraint(Sketcher.Constraint("DistanceX", 0, 2, 0, 1, Q("27 mm")))
sketch9.addConstraint(Sketcher.Constraint("DistanceY", 2, 2, 2, 1, Q("31 mm")))
sketch9.addConstraint(Sketcher.Constraint("DistanceY", -1, 1, 1, 3, Q("36 mm")))
sketch9.addConstraint(Sketcher.Constraint("DistanceX", 1, 3, -1, 1, Q("13.5 mm")))
pocket6 = body3.newObject("PartDesign::Pocket", "Pocket005")
pocket6.Profile = sketch9
pocket6.Type = "ThroughAll"

# Sketch on XY plane
sketch10 = body3.newObject("Sketcher::SketchObject", "Sketch009")
sketch10.AttachmentSupport = (doc.getObject("XY_Plane002"), [""])
sketch10.MapMode = "FlatFace"
sketch10.AttachmentOffset = App.Placement(V(0, 0, 2), App.Rotation())
sketch10.addGeometry(Part.ArcOfCircle(Part.Circle(V(-11.1, 50.4, 0), V(0, 0, 1), 3), math.radians(90), math.radians(270)), False)
sketch10.addGeometry(Part.LineSegment(V(-11.1, 47.4, 0), V(0.9, 47.4, 0)), False)
sketch10.addGeometry(Part.ArcOfCircle(Part.Circle(V(0.9, 50.4, 0), V(0, 0, 1), 3), math.radians(-90), math.radians(90)), False)
sketch10.addGeometry(Part.LineSegment(V(0.9, 53.4, 0), V(-11.1, 53.4, 0)), False)
sketch10.addConstraint(Sketcher.Constraint("Tangent", 0, 2, 1, 1))
sketch10.addConstraint(Sketcher.Constraint("Tangent", 1, 2, 2, 1))
sketch10.addConstraint(Sketcher.Constraint("Tangent", 2, 2, 3, 1))
sketch10.addConstraint(Sketcher.Constraint("Tangent", 3, 2, 0, 1))
sketch10.addConstraint(Sketcher.Constraint("Horizontal", 1))
sketch10.addConstraint(Sketcher.Constraint("Horizontal", 3))
sketch10.addConstraint(Sketcher.Constraint("Radius", 0, Q("3 mm")))
sketch10.addConstraint(Sketcher.Constraint("DistanceX", 1, 1, 1, 2, Q("12 mm")))
sketch10.addConstraint(Sketcher.Constraint("DistanceX", 0, 3, -1, 1, Q("11.1 mm")))
sketch10.addConstraint(Sketcher.Constraint("DistanceY", -1, 1, 0, 3, Q("50.4 mm")))
pocket7 = body3.newObject("PartDesign::Pocket", "Pocket006")
pocket7.Profile = sketch10
pocket7.Type = "ThroughAll"

# Sketch on XY plane
sketch11 = body3.newObject("Sketcher::SketchObject", "Sketch010")
sketch11.AttachmentSupport = (doc.getObject("XY_Plane002"), [""])
sketch11.MapMode = "FlatFace"
sketch11.AttachmentOffset = App.Placement(V(0, 0, 2), App.Rotation())
sketch11.addGeometry(Part.LineSegment(V(14.5, -16, 0), V(-15.3, -16, 0)), False)
sketch11.addGeometry(Part.ArcOfCircle(Part.Circle(V(-14.5, -18.9, 0), V(0, 0, 1), 3), math.radians(105), math.radians(190)), False)
sketch11.addGeometry(Part.ArcOfCircle(Part.Circle(V(-27.5, -19.9, 0), V(0, 0, 1), 10), math.radians(-42), math.radians(3)), False)
sketch11.addGeometry(Part.LineSegment(V(-20, -26.5, 0), V(-23.8, -31, 0)), False)
sketch11.addGeometry(Part.ArcOfCircle(Part.Circle(V(-21.9, -32.5, 0), V(0, 0, 1), 2.4), math.radians(142), math.radians(321)), False)
sketch11.addGeometry(Part.ArcOfCircle(Part.Circle(V(-13.7, -39, 0), V(0, 0, 1), 8), math.radians(87), math.radians(141)), False)
sketch11.addGeometry(Part.LineSegment(V(-13.3, -31, 0), V(14.5, -31, 0)), False)
sketch11.addGeometry(Part.ArcOfCircle(Part.Circle(V(14.5, -28, 0), V(0, 0, 1), 3), math.radians(-90), math.radians(0)), False)
sketch11.addGeometry(Part.LineSegment(V(17.5, -28, 0), V(17.5, -19, 0)), False)
sketch11.addGeometry(Part.ArcOfCircle(Part.Circle(V(14.5, -19, 0), V(0, 0, 1), 3), math.radians(0), math.radians(90)), False)
sketch11.addConstraint(Sketcher.Constraint("Coincident", 0, 2, 1, 1))
sketch11.addConstraint(Sketcher.Constraint("Coincident", 1, 2, 2, 2))
sketch11.addConstraint(Sketcher.Constraint("Coincident", 2, 1, 3, 1))
sketch11.addConstraint(Sketcher.Constraint("Coincident", 3, 2, 4, 1))
sketch11.addConstraint(Sketcher.Constraint("Tangent", 4, 2, 5, 2))
sketch11.addConstraint(Sketcher.Constraint("Coincident", 5, 1, 6, 1))
sketch11.addConstraint(Sketcher.Constraint("Tangent", 6, 2, 7, 1))
sketch11.addConstraint(Sketcher.Constraint("Tangent", 7, 2, 8, 1))
sketch11.addConstraint(Sketcher.Constraint("Tangent", 8, 2, 9, 1))
sketch11.addConstraint(Sketcher.Constraint("Tangent", 9, 2, 0, 1))
sketch11.addConstraint(Sketcher.Constraint("Horizontal", 0))
sketch11.addConstraint(Sketcher.Constraint("Horizontal", 6))
sketch11.addConstraint(Sketcher.Constraint("Vertical", 8))
sketch11.addConstraint(Sketcher.Constraint("Equal", 7, 9))
sketch11.addConstraint(Sketcher.Constraint("Horizontal", 3, 2, 5, 1))
sketch11.addConstraint(Sketcher.Constraint("Vertical", 2, 1, 4, 2))
sketch11.addConstraint(Sketcher.Constraint("Radius", 1, Q("2.999999 mm")))
sketch11.addConstraint(Sketcher.Constraint("Radius", 5, Q("8.000002 mm")))
sketch11.addConstraint(Sketcher.Constraint("Radius", 7, Q("3.000001 mm")))
sketch11.addConstraint(Sketcher.Constraint("DistanceY", 8, 1, 8, 2, Q("9 mm")))
sketch11.addConstraint(Sketcher.Constraint("DistanceX", 0, 2, 0, 1, Q("29.8 mm")))
sketch11.addConstraint(Sketcher.Constraint("DistanceX", 6, 1, 6, 2, Q("27.8 mm")))
sketch11.addConstraint(Sketcher.Constraint("DistanceY", 7, 3, -1, 1, Q("27.999999 mm")))
sketch11.addConstraint(Sketcher.Constraint("DistanceX", 2, 1, -1, 1, Q("20 mm")))
sketch11.addConstraint(Sketcher.Constraint("DistanceY", 4, 2, -1, 1, Q("34 mm")))
sketch11.addConstraint(Sketcher.Constraint("DistanceX", -1, 1, 7, 3, Q("14.499999 mm")))
sketch11.addConstraint(Sketcher.Constraint("DistanceX", 1, 2, -1, 1, Q("17.5 mm")))
sketch11.addConstraint(Sketcher.Constraint("DistanceY", 1, 2, -1, 1, Q("19.4 mm")))
sketch11.addConstraint(Sketcher.Constraint("DistanceY", 2, 1, -1, 1, Q("26.5 mm")))
sketch11.addConstraint(Sketcher.Constraint("DistanceX", 3, 2, -1, 1, Q("23.8 mm")))
sketch11.addConstraint(Sketcher.Constraint("Radius", 2, Q("9.999998 mm")))
pocket8 = body3.newObject("PartDesign::Pocket", "Pocket007")
pocket8.Profile = sketch11
pocket8.Type = "ThroughAll"

# Sketch on XZ plane
sketch12 = body3.newObject("Sketcher::SketchObject", "Sketch011")
sketch12.AttachmentSupport = (doc.getObject("XZ_Plane002"), [""])
sketch12.MapMode = "FlatFace"
sketch12.AttachmentOffset = App.Placement(V(0, 0, -58.843044), App.Rotation())
sketch12.addGeometry(Part.LineSegment(V(-20.6, 34, 0), V(20.4, 34, 0)), False)
sketch12.addGeometry(Part.LineSegment(V(20.4, 34, 0), V(20.4, 22, 0)), False)
sketch12.addGeometry(Part.ArcOfCircle(Part.Circle(V(18.4, 22, 0), V(0, 0, 1), 2), math.radians(-90), math.radians(0)), False)
sketch12.addGeometry(Part.LineSegment(V(18.4, 20, 0), V(-18.6, 20, 0)), False)
sketch12.addGeometry(Part.ArcOfCircle(Part.Circle(V(-18.6, 22, 0), V(0, 0, 1), 2), math.radians(180), math.radians(270)), False)
sketch12.addGeometry(Part.LineSegment(V(-20.6, 22, 0), V(-20.6, 34, 0)), False)
sketch12.addConstraint(Sketcher.Constraint("Coincident", 0, 2, 1, 1))
sketch12.addConstraint(Sketcher.Constraint("Tangent", 1, 2, 2, 2))
sketch12.addConstraint(Sketcher.Constraint("Tangent", 2, 1, 3, 1))
sketch12.addConstraint(Sketcher.Constraint("Tangent", 3, 2, 4, 2))
sketch12.addConstraint(Sketcher.Constraint("Tangent", 4, 1, 5, 1))
sketch12.addConstraint(Sketcher.Constraint("Coincident", 5, 2, 0, 1))
sketch12.addConstraint(Sketcher.Constraint("Horizontal", 0))
sketch12.addConstraint(Sketcher.Constraint("Vertical", 1))
sketch12.addConstraint(Sketcher.Constraint("Horizontal", 3))
sketch12.addConstraint(Sketcher.Constraint("Vertical", 5))
sketch12.addConstraint(Sketcher.Constraint("Equal", 2, 4))
sketch12.addConstraint(Sketcher.Constraint("Radius", 2, Q("1.999999 mm")))
sketch12.addConstraint(Sketcher.Constraint("DistanceX", 0, 1, 0, 2, Q("41 mm")))
sketch12.addConstraint(Sketcher.Constraint("DistanceY", 1, 2, 1, 1, Q("12 mm")))
sketch12.addConstraint(Sketcher.Constraint("DistanceY", -1, 1, 2, 3, Q("21.999999 mm")))
sketch12.addConstraint(Sketcher.Constraint("DistanceX", -1, 1, 2, 3, Q("18.400001 mm")))
pocket9 = body3.newObject("PartDesign::Pocket", "Pocket008")
pocket9.Profile = sketch12
pocket9.Length = 3
pocket9.Reversed = True

# Sketch on XZ plane
sketch13 = body3.newObject("Sketcher::SketchObject", "Sketch012")
sketch13.AttachmentSupport = (doc.getObject("XZ_Plane002"), [""])
sketch13.MapMode = "FlatFace"
sketch13.AttachmentOffset = App.Placement(V(0, 0, -55.843044), App.Rotation())
sketch13.addGeometry(Part.Circle(V(0, 25.6, 0), V(0, 0, 1), 1.7), False)
sketch13.addConstraint(Sketcher.Constraint("PointOnObject", 0, 3, -2))
sketch13.addConstraint(Sketcher.Constraint("Diameter", 0, Q("3.4 mm")))
sketch13.addConstraint(Sketcher.Constraint("DistanceY", -1, 1, 0, 3, Q("25.6 mm")))
pocket10 = body3.newObject("PartDesign::Pocket", "Pocket009")
pocket10.Profile = sketch13
pocket10.Length = 4
pocket10.Reversed = True
mirroring.Visibility = False

doc.recompute()
